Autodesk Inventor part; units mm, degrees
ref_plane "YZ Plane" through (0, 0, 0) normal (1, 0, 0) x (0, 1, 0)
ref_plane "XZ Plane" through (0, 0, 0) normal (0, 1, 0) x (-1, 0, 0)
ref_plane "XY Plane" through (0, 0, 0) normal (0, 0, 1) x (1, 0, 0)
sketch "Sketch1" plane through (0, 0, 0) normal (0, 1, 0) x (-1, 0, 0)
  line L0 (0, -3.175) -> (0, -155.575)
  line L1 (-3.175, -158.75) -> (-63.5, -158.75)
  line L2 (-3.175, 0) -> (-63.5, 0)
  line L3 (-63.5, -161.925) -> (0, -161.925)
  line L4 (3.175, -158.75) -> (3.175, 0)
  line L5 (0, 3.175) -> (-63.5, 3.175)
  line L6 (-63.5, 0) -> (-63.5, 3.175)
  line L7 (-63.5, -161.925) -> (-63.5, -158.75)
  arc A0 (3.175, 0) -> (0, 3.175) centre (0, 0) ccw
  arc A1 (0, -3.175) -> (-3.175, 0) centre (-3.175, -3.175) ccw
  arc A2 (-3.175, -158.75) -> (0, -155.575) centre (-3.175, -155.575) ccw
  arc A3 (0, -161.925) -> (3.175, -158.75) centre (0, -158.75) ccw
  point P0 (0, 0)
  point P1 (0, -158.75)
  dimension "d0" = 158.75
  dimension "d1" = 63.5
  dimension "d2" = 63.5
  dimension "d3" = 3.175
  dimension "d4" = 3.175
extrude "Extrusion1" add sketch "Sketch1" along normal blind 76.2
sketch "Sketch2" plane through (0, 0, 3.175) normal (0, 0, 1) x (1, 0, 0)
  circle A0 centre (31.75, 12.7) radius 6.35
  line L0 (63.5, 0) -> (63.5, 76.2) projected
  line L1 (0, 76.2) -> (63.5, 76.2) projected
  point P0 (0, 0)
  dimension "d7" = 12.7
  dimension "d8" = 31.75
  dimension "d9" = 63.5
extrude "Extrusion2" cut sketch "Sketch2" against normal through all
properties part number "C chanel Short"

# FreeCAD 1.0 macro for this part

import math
import FreeCAD as App
import Part
import Sketcher
Q = App.Units.Quantity

doc = App.newDocument("Part")
params = doc.addObject("Spreadsheet::Sheet", "Params")
for row, (alias, value) in enumerate([
    ("sketch1_width", "2.5 in"),
    ("sketch1_radius", "0.125 in"),
    ("sketch1_height", "6.25 in"),
    ("pad1_length", "3 in"),
    ("sketch2_diameter", "0.5 in"),
], start=1):
    params.set(f"A{row}", alias)
    params.set(f"B{row}", "=" + value)
    params.setAlias(f"B{row}", alias)

body = doc.addObject("PartDesign::Body", "Body")

# Sketch on XZ plane
sketch1 = body.newObject("Sketcher::SketchObject", "Sketch")
sketch1.AttachmentSupport = (doc.getObject("XZ_Plane"), [""])
sketch1.MapMode = "FlatFace"
sketch1.addGeometry([
    Part.ArcOfCircle(Part.Circle(App.Vector(3.2, -3.2, 0), App.Vector(0, 0, 1), 3.2), math.radians(90), math.radians(180)),  # 0
    Part.LineSegment(App.Vector(0, -3.2, 0), App.Vector(0, -155.6, 0)),  # 1
    Part.ArcOfCircle(Part.Circle(App.Vector(3.2, -155.6, 0), App.Vector(0, 0, 1), 3.2), math.radians(180), math.radians(270)),  # 2
    Part.LineSegment(App.Vector(3.2, -158.8, 0), App.Vector(63.5, -158.8, 0)),  # 3
    Part.LineSegment(App.Vector(63.5, -158.8, 0), App.Vector(63.5, -161.9, 0)),  # 4
    Part.LineSegment(App.Vector(63.5, -161.9, 0), App.Vector(0, -161.9, 0)),  # 5
    Part.ArcOfCircle(Part.Circle(App.Vector(0, -158.8, 0), App.Vector(0, 0, 1), 3.2), math.radians(180), math.radians(270)),  # 6
    Part.LineSegment(App.Vector(-3.2, -158.8, 0), App.Vector(-3.2, 0, 0)),  # 7
    Part.ArcOfCircle(Part.Circle(App.Vector(0, 0, 0), App.Vector(0, 0, 1), 3.2), math.radians(90), math.radians(180)),  # 8
    Part.LineSegment(App.Vector(0, 3.2, 0), App.Vector(63.5, 3.2, 0)),  # 9
    Part.LineSegment(App.Vector(63.5, 3.2, 0), App.Vector(63.5, 0, 0)),  # 10
    Part.LineSegment(App.Vector(63.5, 0, 0), App.Vector(3.2, 0, 0)),  # 11
], False)
sketch1.addConstraint([
    Sketcher.Constraint("Tangent", 0, 2, 1, 1),
    Sketcher.Constraint("Tangent", 1, 2, 2, 1),
    Sketcher.Constraint("Tangent", 2, 2, 3, 1),
    Sketcher.Constraint("Coincident", 3, 2, 4, 1),
    Sketcher.Constraint("Coincident", 4, 2, 5, 1),
    Sketcher.Constraint("Tangent", 5, 2, 6, 2),
    Sketcher.Constraint("Tangent", 6, 1, 7, 1),
    Sketcher.Constraint("Tangent", 7, 2, 8, 2),
    Sketcher.Constraint("Tangent", 8, 1, 9, 1),
    Sketcher.Constraint("Coincident", 9, 2, 10, 1),
    Sketcher.Constraint("Coincident", 10, 2, 11, 1),
    Sketcher.Constraint("Tangent", 11, 2, 0, 1),
    Sketcher.Constraint("Vertical", 1),
    Sketcher.Constraint("Horizontal", 3),
    Sketcher.Constraint("Vertical", 4),
    Sketcher.Constraint("Horizontal", 5),
    Sketcher.Constraint("Vertical", 7),
    Sketcher.Constraint("Horizontal", 9),
    Sketcher.Constraint("Vertical", 10),
    Sketcher.Constraint("Horizontal", 11),
    Sketcher.Constraint("Coincident", 8, 3, -1, 1),
    Sketcher.Constraint("Equal", 0, 2),
    Sketcher.Constraint("Equal", 2, 6),
    Sketcher.Constraint("Equal", 6, 8),
    Sketcher.Constraint("Symmetric", 0, 2, 8, 1, -1, 1),
    Sketcher.Constraint("Horizontal", 6, 3, 2, 2),
    Sketcher.Constraint("Vertical", 4, 2, 9, 2),
    Sketcher.Constraint("DistanceX", 5, 2, 5, 1, Q("2.5 in")),
    Sketcher.Constraint("Radius", 0, Q("0.125 in")),
    Sketcher.Constraint("DistanceY", 7, 1, 7, 2, Q("6.25 in")),
])
sketch1.setExpression("Constraints[27]", "Params.sketch1_width")
sketch1.setExpression("Constraints[28]", "Params.sketch1_radius")
sketch1.setExpression("Constraints[29]", "Params.sketch1_height")
pad1 = body.newObject("PartDesign::Pad", "Pad")
pad1.Profile = sketch1
pad1.setExpression("Length", "Params.pad1_length")
pad1.Reversed = True

# Sketch on XY plane
sketch2 = body.newObject("Sketcher::SketchObject", "Sketch001")
sketch2.AttachmentSupport = (doc.getObject("XY_Plane"), [""])
sketch2.MapMode = "FlatFace"
sketch2.AttachmentOffset = App.Placement(App.Vector(0, 0, 0.125 * 25.4), App.Rotation())
sketch2.addGeometry(Part.Circle(App.Vector(32, 13, 0), App.Vector(0, 0, 1), 6), False)
sketch2.addConstraint([
    Sketcher.Constraint("Diameter", 0, Q("0.5 in")),
    Sketcher.Constraint("DistanceY", -1, 1, 0, 3, Q("0.5 in")),
    Sketcher.Constraint("DistanceX", -1, 1, 0, 3, Q("1.25 in")),
])
sketch2.setExpression("Constraints[0]", "Params.sketch2_diameter")
pocket1 = body.newObject("PartDesign::Pocket", "Pocket")
pocket1.Profile = sketch2
pocket1.Type = "ThroughAll"

doc.recompute()
